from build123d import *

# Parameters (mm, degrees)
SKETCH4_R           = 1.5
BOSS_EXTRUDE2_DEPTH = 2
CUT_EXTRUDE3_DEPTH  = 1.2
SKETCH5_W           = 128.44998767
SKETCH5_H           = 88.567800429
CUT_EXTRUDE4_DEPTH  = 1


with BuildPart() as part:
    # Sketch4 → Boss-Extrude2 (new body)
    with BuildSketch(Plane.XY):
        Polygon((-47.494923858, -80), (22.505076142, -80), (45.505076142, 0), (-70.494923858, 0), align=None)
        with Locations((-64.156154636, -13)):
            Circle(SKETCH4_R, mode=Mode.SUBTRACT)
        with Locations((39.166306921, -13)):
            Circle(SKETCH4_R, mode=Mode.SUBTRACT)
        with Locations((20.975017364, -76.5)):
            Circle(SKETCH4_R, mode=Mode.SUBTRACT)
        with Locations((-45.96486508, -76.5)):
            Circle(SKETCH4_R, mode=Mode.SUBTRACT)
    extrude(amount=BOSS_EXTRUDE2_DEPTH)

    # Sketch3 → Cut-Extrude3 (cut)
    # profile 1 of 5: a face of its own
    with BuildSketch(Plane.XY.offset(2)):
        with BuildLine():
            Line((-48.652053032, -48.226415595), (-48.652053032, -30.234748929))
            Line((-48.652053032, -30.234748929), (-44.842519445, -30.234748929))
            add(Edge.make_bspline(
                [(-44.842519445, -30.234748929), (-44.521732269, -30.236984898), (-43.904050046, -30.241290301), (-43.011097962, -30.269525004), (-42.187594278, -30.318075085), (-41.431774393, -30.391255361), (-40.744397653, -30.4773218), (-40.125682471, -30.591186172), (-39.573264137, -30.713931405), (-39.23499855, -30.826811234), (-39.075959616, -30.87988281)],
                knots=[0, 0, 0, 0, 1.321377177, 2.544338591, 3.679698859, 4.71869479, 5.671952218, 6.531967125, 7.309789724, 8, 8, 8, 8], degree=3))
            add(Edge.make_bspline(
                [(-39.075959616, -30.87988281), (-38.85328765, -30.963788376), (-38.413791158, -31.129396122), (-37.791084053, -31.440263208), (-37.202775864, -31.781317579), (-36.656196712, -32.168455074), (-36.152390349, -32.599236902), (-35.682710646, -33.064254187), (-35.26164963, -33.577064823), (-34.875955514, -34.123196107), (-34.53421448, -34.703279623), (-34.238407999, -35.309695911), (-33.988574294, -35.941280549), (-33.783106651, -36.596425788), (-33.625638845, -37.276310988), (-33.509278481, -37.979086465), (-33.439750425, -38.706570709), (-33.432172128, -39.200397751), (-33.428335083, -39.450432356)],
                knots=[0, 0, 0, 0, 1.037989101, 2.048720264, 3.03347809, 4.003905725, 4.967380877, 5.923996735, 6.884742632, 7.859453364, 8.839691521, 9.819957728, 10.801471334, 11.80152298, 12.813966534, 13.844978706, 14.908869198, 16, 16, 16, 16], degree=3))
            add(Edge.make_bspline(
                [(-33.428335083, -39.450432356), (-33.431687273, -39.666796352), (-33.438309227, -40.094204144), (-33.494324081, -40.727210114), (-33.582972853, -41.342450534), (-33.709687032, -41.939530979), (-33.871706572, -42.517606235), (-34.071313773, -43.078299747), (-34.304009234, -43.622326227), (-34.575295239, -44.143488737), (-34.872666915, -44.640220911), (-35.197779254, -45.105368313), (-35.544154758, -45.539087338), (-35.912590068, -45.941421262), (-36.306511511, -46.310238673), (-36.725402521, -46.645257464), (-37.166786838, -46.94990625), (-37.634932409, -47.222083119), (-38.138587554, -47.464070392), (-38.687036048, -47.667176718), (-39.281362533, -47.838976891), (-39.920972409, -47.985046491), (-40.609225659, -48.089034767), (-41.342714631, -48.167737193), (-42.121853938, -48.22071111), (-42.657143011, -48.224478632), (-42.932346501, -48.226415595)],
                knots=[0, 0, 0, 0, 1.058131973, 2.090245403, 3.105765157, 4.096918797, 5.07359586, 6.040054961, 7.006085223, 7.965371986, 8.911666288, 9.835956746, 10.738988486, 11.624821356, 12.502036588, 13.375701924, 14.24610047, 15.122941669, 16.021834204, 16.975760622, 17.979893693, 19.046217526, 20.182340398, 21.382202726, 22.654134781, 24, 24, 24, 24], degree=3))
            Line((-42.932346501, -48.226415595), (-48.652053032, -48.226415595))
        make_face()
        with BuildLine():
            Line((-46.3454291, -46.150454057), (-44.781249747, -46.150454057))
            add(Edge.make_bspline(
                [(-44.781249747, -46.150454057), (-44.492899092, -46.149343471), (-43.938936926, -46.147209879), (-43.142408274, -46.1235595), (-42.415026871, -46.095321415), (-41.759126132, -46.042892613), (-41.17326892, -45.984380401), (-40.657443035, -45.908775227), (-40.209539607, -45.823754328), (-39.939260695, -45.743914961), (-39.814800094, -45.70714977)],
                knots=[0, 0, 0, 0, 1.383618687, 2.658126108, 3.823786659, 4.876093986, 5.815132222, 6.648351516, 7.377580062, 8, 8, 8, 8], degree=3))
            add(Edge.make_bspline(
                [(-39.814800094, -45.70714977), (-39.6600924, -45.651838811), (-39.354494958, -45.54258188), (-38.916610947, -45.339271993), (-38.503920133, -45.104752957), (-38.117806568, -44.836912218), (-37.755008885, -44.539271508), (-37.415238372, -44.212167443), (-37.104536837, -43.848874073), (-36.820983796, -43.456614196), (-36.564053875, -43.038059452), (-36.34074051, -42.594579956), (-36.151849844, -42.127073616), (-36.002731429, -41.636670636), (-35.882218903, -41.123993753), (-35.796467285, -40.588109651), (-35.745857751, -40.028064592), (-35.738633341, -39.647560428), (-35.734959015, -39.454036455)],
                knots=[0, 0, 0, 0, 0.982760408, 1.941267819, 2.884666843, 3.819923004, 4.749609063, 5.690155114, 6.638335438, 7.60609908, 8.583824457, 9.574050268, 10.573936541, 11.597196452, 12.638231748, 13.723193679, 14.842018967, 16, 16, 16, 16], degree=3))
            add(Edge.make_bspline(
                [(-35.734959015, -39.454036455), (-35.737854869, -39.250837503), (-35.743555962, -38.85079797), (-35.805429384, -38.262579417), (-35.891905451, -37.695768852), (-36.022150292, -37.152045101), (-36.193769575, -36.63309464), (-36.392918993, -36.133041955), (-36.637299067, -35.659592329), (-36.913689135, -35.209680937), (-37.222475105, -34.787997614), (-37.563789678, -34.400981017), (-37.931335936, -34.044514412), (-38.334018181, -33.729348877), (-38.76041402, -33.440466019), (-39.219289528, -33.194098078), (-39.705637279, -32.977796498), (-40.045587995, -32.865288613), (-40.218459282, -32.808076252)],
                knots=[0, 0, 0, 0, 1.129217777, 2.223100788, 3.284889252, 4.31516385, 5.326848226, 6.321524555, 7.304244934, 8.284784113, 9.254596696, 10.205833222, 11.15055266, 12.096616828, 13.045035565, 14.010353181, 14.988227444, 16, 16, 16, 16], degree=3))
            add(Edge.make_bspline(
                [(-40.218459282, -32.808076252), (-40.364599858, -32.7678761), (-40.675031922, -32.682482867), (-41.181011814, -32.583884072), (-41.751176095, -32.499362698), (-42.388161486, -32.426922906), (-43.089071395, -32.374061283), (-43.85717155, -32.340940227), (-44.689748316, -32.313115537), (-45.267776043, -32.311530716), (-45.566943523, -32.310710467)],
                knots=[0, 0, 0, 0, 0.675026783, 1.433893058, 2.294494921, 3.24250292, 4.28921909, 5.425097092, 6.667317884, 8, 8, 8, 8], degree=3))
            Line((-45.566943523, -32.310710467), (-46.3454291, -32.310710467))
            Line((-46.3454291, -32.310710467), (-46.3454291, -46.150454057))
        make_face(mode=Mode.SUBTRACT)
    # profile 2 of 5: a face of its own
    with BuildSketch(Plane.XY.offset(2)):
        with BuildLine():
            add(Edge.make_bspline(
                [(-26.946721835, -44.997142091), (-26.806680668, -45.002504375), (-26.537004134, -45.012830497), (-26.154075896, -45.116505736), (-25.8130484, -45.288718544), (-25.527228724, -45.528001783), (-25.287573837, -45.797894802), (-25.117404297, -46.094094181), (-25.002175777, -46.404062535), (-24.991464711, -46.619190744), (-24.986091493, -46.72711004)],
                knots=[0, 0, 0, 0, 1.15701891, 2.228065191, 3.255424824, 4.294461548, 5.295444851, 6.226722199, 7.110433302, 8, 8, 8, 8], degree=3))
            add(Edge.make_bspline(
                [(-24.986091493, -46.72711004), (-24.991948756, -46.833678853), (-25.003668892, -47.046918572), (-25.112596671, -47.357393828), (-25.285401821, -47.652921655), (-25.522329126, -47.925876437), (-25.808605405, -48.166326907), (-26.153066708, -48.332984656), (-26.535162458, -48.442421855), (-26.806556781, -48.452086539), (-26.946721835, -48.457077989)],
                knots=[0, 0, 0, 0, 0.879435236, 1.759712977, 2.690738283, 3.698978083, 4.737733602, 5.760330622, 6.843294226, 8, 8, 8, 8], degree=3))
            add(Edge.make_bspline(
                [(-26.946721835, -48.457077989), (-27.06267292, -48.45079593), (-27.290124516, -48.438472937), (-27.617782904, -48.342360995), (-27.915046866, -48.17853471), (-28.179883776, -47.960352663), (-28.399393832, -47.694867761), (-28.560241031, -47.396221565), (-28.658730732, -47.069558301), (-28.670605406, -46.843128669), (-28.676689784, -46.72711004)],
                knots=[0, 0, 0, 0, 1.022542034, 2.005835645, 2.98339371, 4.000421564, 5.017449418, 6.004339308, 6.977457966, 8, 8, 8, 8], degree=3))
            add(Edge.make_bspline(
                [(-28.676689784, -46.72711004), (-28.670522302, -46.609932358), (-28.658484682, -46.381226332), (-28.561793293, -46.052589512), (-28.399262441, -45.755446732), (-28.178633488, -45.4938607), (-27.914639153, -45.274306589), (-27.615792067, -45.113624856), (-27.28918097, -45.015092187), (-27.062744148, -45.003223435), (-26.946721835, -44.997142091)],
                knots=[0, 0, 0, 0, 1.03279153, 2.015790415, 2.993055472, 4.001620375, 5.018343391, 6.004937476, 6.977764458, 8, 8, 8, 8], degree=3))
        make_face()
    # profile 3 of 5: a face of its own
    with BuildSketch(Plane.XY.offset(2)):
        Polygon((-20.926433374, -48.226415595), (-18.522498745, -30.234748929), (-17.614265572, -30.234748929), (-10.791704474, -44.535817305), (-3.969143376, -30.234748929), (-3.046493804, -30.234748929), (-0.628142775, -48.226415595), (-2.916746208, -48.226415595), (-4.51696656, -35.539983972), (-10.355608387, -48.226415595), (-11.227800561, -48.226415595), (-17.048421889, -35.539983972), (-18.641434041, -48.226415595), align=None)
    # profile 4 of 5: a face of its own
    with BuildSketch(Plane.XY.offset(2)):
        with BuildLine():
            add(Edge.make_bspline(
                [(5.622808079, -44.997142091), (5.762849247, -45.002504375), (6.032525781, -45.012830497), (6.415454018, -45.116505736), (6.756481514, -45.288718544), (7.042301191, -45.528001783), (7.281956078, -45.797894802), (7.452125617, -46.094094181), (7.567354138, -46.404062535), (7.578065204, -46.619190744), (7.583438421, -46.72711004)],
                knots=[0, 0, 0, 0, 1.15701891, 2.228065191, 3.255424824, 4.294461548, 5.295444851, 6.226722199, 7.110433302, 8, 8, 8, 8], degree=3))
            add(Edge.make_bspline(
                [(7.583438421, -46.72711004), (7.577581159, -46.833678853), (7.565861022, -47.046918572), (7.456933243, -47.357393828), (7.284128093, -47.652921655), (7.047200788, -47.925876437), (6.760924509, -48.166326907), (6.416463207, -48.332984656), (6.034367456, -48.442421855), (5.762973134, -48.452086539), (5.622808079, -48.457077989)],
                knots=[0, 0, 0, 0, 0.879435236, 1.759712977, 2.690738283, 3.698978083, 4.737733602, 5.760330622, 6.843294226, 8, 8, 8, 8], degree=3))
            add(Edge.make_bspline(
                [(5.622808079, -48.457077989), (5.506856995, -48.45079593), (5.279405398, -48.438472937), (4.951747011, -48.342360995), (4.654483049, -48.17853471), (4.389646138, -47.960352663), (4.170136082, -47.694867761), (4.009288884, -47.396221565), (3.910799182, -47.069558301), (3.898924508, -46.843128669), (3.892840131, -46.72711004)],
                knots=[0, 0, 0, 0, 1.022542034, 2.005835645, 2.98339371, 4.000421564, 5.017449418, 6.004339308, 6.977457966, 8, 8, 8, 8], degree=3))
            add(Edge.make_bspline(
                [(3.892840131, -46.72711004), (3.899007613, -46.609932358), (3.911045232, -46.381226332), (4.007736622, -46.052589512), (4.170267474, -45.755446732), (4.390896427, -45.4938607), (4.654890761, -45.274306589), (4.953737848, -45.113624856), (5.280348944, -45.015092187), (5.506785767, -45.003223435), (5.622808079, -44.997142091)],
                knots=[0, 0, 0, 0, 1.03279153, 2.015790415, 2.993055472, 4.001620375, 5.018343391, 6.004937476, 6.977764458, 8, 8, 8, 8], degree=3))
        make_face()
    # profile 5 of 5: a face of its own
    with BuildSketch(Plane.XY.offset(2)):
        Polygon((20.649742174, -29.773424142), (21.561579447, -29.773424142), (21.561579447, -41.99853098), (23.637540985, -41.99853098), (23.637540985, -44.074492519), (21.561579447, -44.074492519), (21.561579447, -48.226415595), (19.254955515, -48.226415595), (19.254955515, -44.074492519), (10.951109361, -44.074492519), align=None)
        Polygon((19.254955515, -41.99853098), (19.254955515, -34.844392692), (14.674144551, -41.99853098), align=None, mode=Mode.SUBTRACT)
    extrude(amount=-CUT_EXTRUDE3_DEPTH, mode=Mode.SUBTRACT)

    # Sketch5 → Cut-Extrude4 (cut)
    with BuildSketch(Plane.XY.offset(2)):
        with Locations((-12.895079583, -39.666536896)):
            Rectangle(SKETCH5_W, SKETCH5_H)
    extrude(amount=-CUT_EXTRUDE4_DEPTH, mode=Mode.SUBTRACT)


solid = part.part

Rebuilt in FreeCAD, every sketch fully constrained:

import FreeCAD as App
import Part
import Sketcher

doc = App.newDocument("Part")
body = doc.addObject("PartDesign::Body", "Body")

sketch1 = doc.addObject("Sketcher::SketchObject", "Sketch")
body.addObject(sketch1)
sketch1.AttachmentSupport = (doc.XY_Plane, [""])
sketch1.MapMode = "FlatFace"
sketch1.addGeometry(Part.LineSegment(App.Vector(-47.5, -80, 0), App.Vector(22.5, -80, 0)), False)
sketch1.addGeometry(Part.LineSegment(App.Vector(22.5, -80, 0), App.Vector(45.5, 0, 0)), False)
sketch1.addGeometry(Part.LineSegment(App.Vector(45.5, 0, 0), App.Vector(-70.5, 0, 0)), False)
sketch1.addGeometry(Part.LineSegment(App.Vector(-70.5, 0, 0), App.Vector(-47.5, -80, 0)), False)
sketch1.addGeometry(Part.Circle(App.Vector(-46, -76.5, 0), App.Vector(0, 0, 1), 1.5), False)
sketch1.addGeometry(Part.Circle(App.Vector(21, -76.5, 0), App.Vector(0, 0, 1), 1.5), False)
sketch1.addGeometry(Part.Circle(App.Vector(-64.2, -13, 0), App.Vector(0, 0, 1), 1.5), False)
sketch1.addGeometry(Part.Circle(App.Vector(39.2, -13, 0), App.Vector(0, 0, 1), 1.5), False)
sketch1.addConstraint(Sketcher.Constraint("Coincident", 0, 2, 1, 1))
sketch1.addConstraint(Sketcher.Constraint("Coincident", 1, 2, 2, 1))
sketch1.addConstraint(Sketcher.Constraint("Coincident", 2, 2, 3, 1))
sketch1.addConstraint(Sketcher.Constraint("Coincident", 3, 2, 0, 1))
sketch1.addConstraint(Sketcher.Constraint("Horizontal", 0))
sketch1.addConstraint(Sketcher.Constraint("Horizontal", 2))
sketch1.addConstraint(Sketcher.Constraint("Equal", 4, 5))
sketch1.addConstraint(Sketcher.Constraint("Equal", 5, 6))
sketch1.addConstraint(Sketcher.Constraint("Equal", 6, 7))
sketch1.addConstraint(Sketcher.Constraint("PointOnObject", 1, 2, -1))
sketch1.addConstraint(Sketcher.Constraint("Horizontal", 4, 3, 5, 3))
sketch1.addConstraint(Sketcher.Constraint("Horizontal", 6, 3, 7, 3))
sketch1.addConstraint(Sketcher.Constraint("Equal", 1, 3))
sketch1.addConstraint(Sketcher.Constraint("Diameter", 4, 3.0))
sketch1.addConstraint(Sketcher.Constraint("DistanceX", 0, 1, 0, 2, 70.0))
sketch1.addConstraint(Sketcher.Constraint("DistanceX", 2, 2, 2, 1, 116.0))
sketch1.addConstraint(Sketcher.Constraint("DistanceY", 6, 3, -1, 1, 13.0))
sketch1.addConstraint(Sketcher.Constraint("DistanceY", 0, 2, -1, 1, 80.0))
sketch1.addConstraint(Sketcher.Constraint("DistanceY", 4, 3, -1, 1, 76.5))
sketch1.addConstraint(Sketcher.Constraint("DistanceX", 6, 3, 4, 3, 18.19129))
sketch1.addConstraint(Sketcher.Constraint("DistanceX", 6, 3, 5, 3, 85.131172))
sketch1.addConstraint(Sketcher.Constraint("DistanceX", 5, 3, 7, 3, 18.19129))
sketch1.addConstraint(Sketcher.Constraint("DistanceX", 5, 3, 0, 2, 1.530059))
sketch1.addConstraint(Sketcher.Constraint("DistanceX", 4, 3, -1, 1, 45.964865))
pad1 = doc.addObject("PartDesign::Pad", "Pad")
body.addObject(pad1)
pad1.Profile = sketch1
pad1.Length = 2

sketch2 = doc.addObject("Sketcher::SketchObject", "Sketch001")
body.addObject(sketch2)
sketch2.AttachmentSupport = (doc.XY_Plane, [""])
sketch2.MapMode = "FlatFace"
sketch2.AttachmentOffset = App.Placement(App.Vector(0, 0, 2), App.Rotation())
sketch2.addGeometry(Part.LineSegment(App.Vector(-48.652053, -30.234749, 0), App.Vector(-48.652053, -48.226416, 0)), False)
sketch2.addGeometry(Part.LineSegment(App.Vector(-48.652053, -48.226416, 0), App.Vector(-42.932347, -48.226416, 0)), False)
sketch2.addGeometry(Part.BSplineCurve([App.Vector(-33.428335, -39.450432, 0), App.Vector(-33.431687, -39.666796, 0), App.Vector(-33.438309, -40.094204, 0), App.Vector(-33.494324, -40.72721, 0), App.Vector(-33.582973, -41.342451, 0), App.Vector(-33.709687, -41.939531, 0), App.Vector(-33.871707, -42.517606, 0), App.Vector(-34.071314, -43.0783, 0), App.Vector(-34.304009, -43.622326, 0), App.Vector(-34.575295, -44.143489, 0), App.Vector(-34.872667, -44.640221, 0), App.Vector(-35.197779, -45.105368, 0), App.Vector(-35.544155, -45.539087, 0), App.Vector(-35.91259, -45.941421, 0), App.Vector(-36.306512, -46.310239, 0), App.Vector(-36.725403, -46.645257, 0), App.Vector(-37.166787, -46.949906, 0), App.Vector(-37.634932, -47.222083, 0), App.Vector(-38.138588, -47.46407, 0), App.Vector(-38.687036, -47.667177, 0), App.Vector(-39.281363, -47.838977, 0), App.Vector(-39.920972, -47.985046, 0), App.Vector(-40.609226, -48.089035, 0), App.Vector(-41.342715, -48.167737, 0), App.Vector(-42.121854, -48.220711, 0), App.Vector(-42.657143, -48.224479, 0), App.Vector(-42.932347, -48.226416, 0)], [4, 1, 1, 1, 1, 1, 1, 1, 1, 1, 1, 1, 1, 1, 1, 1, 1, 1, 1, 1, 1, 1, 1, 1, 4], [0, 1.058131973, 2.090245403, 3.105765157, 4.096918797, 5.07359586, 6.040054961, 7.006085223, 7.965371986, 8.911666288, 9.835956746, 10.738988486, 11.624821356, 12.502036588, 13.375701924, 14.24610047, 15.122941669, 16.021834204, 16.975760622, 17.979893693, 19.046217526, 20.182340398, 21.382202726, 22.654134781, 24], False, 3, [1, 1, 1, 1, 1, 1, 1, 1, 1, 1, 1, 1, 1, 1, 1, 1, 1, 1, 1, 1, 1, 1, 1, 1, 1, 1, 1], False), False)
sketch2.addGeometry(Part.BSplineCurve([App.Vector(-39.07596, -30.879883, 0), App.Vector(-38.853288, -30.963788, 0), App.Vector(-38.413791, -31.129396, 0), App.Vector(-37.791084, -31.440263, 0), App.Vector(-37.202776, -31.781318, 0), App.Vector(-36.656197, -32.168455, 0), App.Vector(-36.15239, -32.599237, 0), App.Vector(-35.682711, -33.064254, 0), App.Vector(-35.26165, -33.577065, 0), App.Vector(-34.875956, -34.123196, 0), App.Vector(-34.534214, -34.70328, 0), App.Vector(-34.238408, -35.309696, 0), App.Vector(-33.988574, -35.941281, 0), App.Vector(-33.783107, -36.596426, 0), App.Vector(-33.625639, -37.276311, 0), App.Vector(-33.509278, -37.979086, 0), App.Vector(-33.43975, -38.706571, 0), App.Vector(-33.432172, -39.200398, 0), App.Vector(-33.428335, -39.450432, 0)], [4, 1, 1, 1, 1, 1, 1, 1, 1, 1, 1, 1, 1, 1, 1, 1, 4], [0, 1.037989101, 2.048720264, 3.03347809, 4.003905725, 4.967380877, 5.923996735, 6.884742632, 7.859453364, 8.839691521, 9.819957728, 10.801471334, 11.80152298, 12.813966534, 13.844978706, 14.908869198, 16], False, 3, [1, 1, 1, 1, 1, 1, 1, 1, 1, 1, 1, 1, 1, 1, 1, 1, 1, 1, 1], False), False)
sketch2.addGeometry(Part.BSplineCurve([App.Vector(-44.842519, -30.234749, 0), App.Vector(-44.521732, -30.236985, 0), App.Vector(-43.90405, -30.24129, 0), App.Vector(-43.011098, -30.269525, 0), App.Vector(-42.187594, -30.318075, 0), App.Vector(-41.431774, -30.391255, 0), App.Vector(-40.744398, -30.477322, 0), App.Vector(-40.125682, -30.591186, 0), App.Vector(-39.573264, -30.713931, 0), App.Vector(-39.234999, -30.826811, 0), App.Vector(-39.07596, -30.879883, 0)], [4, 1, 1, 1, 1, 1, 1, 1, 4], [0, 1.321377177, 2.544338591, 3.679698859, 4.71869479, 5.671952218, 6.531967125, 7.309789724, 8], False, 3, [1, 1, 1, 1, 1, 1, 1, 1, 1, 1, 1], False), False)
sketch2.addGeometry(Part.LineSegment(App.Vector(-44.842519, -30.234749, 0), App.Vector(-48.652053, -30.234749, 0)), False)
sketch2.addGeometry(Part.LineSegment(App.Vector(-46.345429, -46.150454, 0), App.Vector(-46.345429, -32.31071, 0)), False)
sketch2.addGeometry(Part.LineSegment(App.Vector(-46.345429, -32.31071, 0), App.Vector(-45.566944, -32.31071, 0)), False)
sketch2.addGeometry(Part.BSplineCurve([App.Vector(-40.218459, -32.808076, 0), App.Vector(-40.3646, -32.767876, 0), App.Vector(-40.675032, -32.682483, 0), App.Vector(-41.181012, -32.583884, 0), App.Vector(-41.751176, -32.499363, 0), App.Vector(-42.388161, -32.426923, 0), App.Vector(-43.089071, -32.374061, 0), App.Vector(-43.857172, -32.34094, 0), App.Vector(-44.689748, -32.313116, 0), App.Vector(-45.267776, -32.311531, 0), App.Vector(-45.566944, -32.31071, 0)], [4, 1, 1, 1, 1, 1, 1, 1, 4], [0, 0.675026783, 1.433893058, 2.294494921, 3.24250292, 4.28921909, 5.425097092, 6.667317884, 8], False, 3, [1, 1, 1, 1, 1, 1, 1, 1, 1, 1, 1], False), False)
sketch2.addGeometry(Part.BSplineCurve([App.Vector(-35.734959, -39.454036, 0), App.Vector(-35.737855, -39.250838, 0), App.Vector(-35.743556, -38.850798, 0), App.Vector(-35.805429, -38.262579, 0), App.Vector(-35.891905, -37.695769, 0), App.Vector(-36.02215, -37.152045, 0), App.Vector(-36.19377, -36.633095, 0), App.Vector(-36.392919, -36.133042, 0), App.Vector(-36.637299, -35.659592, 0), App.Vector(-36.913689, -35.209681, 0), App.Vector(-37.222475, -34.787998, 0), App.Vector(-37.56379, -34.400981, 0), App.Vector(-37.931336, -34.044514, 0), App.Vector(-38.334018, -33.729349, 0), App.Vector(-38.760414, -33.440466, 0), App.Vector(-39.21929, -33.194098, 0), App.Vector(-39.705637, -32.977796, 0), App.Vector(-40.045588, -32.865289, 0), App.Vector(-40.218459, -32.808076, 0)], [4, 1, 1, 1, 1, 1, 1, 1, 1, 1, 1, 1, 1, 1, 1, 1, 4], [0, 1.129217777, 2.223100788, 3.284889252, 4.31516385, 5.326848226, 6.321524555, 7.304244934, 8.284784113, 9.254596696, 10.205833222, 11.15055266, 12.096616828, 13.045035565, 14.010353181, 14.988227444, 16], False, 3, [1, 1, 1, 1, 1, 1, 1, 1, 1, 1, 1, 1, 1, 1, 1, 1, 1, 1, 1], False), False)
sketch2.addGeometry(Part.BSplineCurve([App.Vector(-39.8148, -45.70715, 0), App.Vector(-39.660092, -45.651839, 0), App.Vector(-39.354495, -45.542582, 0), App.Vector(-38.916611, -45.339272, 0), App.Vector(-38.50392, -45.104753, 0), App.Vector(-38.117807, -44.836912, 0), App.Vector(-37.755009, -44.539272, 0), App.Vector(-37.415238, -44.212167, 0), App.Vector(-37.104537, -43.848874, 0), App.Vector(-36.820984, -43.456614, 0), App.Vector(-36.564054, -43.038059, 0), App.Vector(-36.340741, -42.59458, 0), App.Vector(-36.15185, -42.127074, 0), App.Vector(-36.002731, -41.636671, 0), App.Vector(-35.882219, -41.123994, 0), App.Vector(-35.796467, -40.58811, 0), App.Vector(-35.745858, -40.028065, 0), App.Vector(-35.738633, -39.64756, 0), App.Vector(-35.734959, -39.454036, 0)], [4, 1, 1, 1, 1, 1, 1, 1, 1, 1, 1, 1, 1, 1, 1, 1, 4], [0, 0.982760408, 1.941267819, 2.884666843, 3.819923004, 4.749609063, 5.690155114, 6.638335438, 7.60609908, 8.583824457, 9.574050268, 10.573936541, 11.597196452, 12.638231748, 13.723193679, 14.842018967, 16], False, 3, [1, 1, 1, 1, 1, 1, 1, 1, 1, 1, 1, 1, 1, 1, 1, 1, 1, 1, 1], False), False)
sketch2.addGeometry(Part.BSplineCurve([App.Vector(-44.78125, -46.150454, 0), App.Vector(-44.492899, -46.149343, 0), App.Vector(-43.938937, -46.14721, 0), App.Vector(-43.142408, -46.123559, 0), App.Vector(-42.415027, -46.095321, 0), App.Vector(-41.759126, -46.042893, 0), App.Vector(-41.173269, -45.98438, 0), App.Vector(-40.657443, -45.908775, 0), App.Vector(-40.20954, -45.823754, 0), App.Vector(-39.939261, -45.743915, 0), App.Vector(-39.8148, -45.70715, 0)], [4, 1, 1, 1, 1, 1, 1, 1, 4], [0, 1.383618687, 2.658126108, 3.823786659, 4.876093986, 5.815132222, 6.648351516, 7.377580062, 8], False, 3, [1, 1, 1, 1, 1, 1, 1, 1, 1, 1, 1], False), False)
sketch2.addGeometry(Part.LineSegment(App.Vector(-44.78125, -46.150454, 0), App.Vector(-46.345429, -46.150454, 0)), False)
sketch2.addGeometry(Part.BSplineCurve([App.Vector(-26.946722, -44.997142, 0), App.Vector(-26.806681, -45.002504, 0), App.Vector(-26.537004, -45.01283, 0), App.Vector(-26.154076, -45.116506, 0), App.Vector(-25.813048, -45.288719, 0), App.Vector(-25.527229, -45.528002, 0), App.Vector(-25.287574, -45.797895, 0), App.Vector(-25.117404, -46.094094, 0), App.Vector(-25.002176, -46.404063, 0), App.Vector(-24.991465, -46.619191, 0), App.Vector(-24.986091, -46.72711, 0)], [4, 1, 1, 1, 1, 1, 1, 1, 4], [0, 1.15701891, 2.228065191, 3.255424824, 4.294461548, 5.295444851, 6.226722199, 7.110433302, 8], False, 3, [1, 1, 1, 1, 1, 1, 1, 1, 1, 1, 1], False), False)
sketch2.addGeometry(Part.BSplineCurve([App.Vector(-28.67669, -46.72711, 0), App.Vector(-28.670522, -46.609932, 0), App.Vector(-28.658485, -46.381226, 0), App.Vector(-28.561793, -46.05259, 0), App.Vector(-28.399262, -45.755447, 0), App.Vector(-28.178633, -45.493861, 0), App.Vector(-27.914639, -45.274307, 0), App.Vector(-27.615792, -45.113625, 0), App.Vector(-27.289181, -45.015092, 0), App.Vector(-27.062744, -45.003223, 0), App.Vector(-26.946722, -44.997142, 0)], [4, 1, 1, 1, 1, 1, 1, 1, 4], [0, 1.03279153, 2.015790415, 2.993055472, 4.001620375, 5.018343391, 6.004937476, 6.977764458, 8], False, 3, [1, 1, 1, 1, 1, 1, 1, 1, 1, 1, 1], False), False)
sketch2.addGeometry(Part.BSplineCurve([App.Vector(-26.946722, -48.457078, 0), App.Vector(-27.062673, -48.450796, 0), App.Vector(-27.290125, -48.438473, 0), App.Vector(-27.617783, -48.342361, 0), App.Vector(-27.915047, -48.178535, 0), App.Vector(-28.179884, -47.960353, 0), App.Vector(-28.399394, -47.694868, 0), App.Vector(-28.560241, -47.396222, 0), App.Vector(-28.658731, -47.069558, 0), App.Vector(-28.670605, -46.843129, 0), App.Vector(-28.67669, -46.72711, 0)], [4, 1, 1, 1, 1, 1, 1, 1, 4], [0, 1.022542034, 2.005835645, 2.98339371, 4.000421564, 5.017449418, 6.004339308, 6.977457966, 8], False, 3, [1, 1, 1, 1, 1, 1, 1, 1, 1, 1, 1], False), False)
sketch2.addGeometry(Part.BSplineCurve([App.Vector(-24.986091, -46.72711, 0), App.Vector(-24.991949, -46.833679, 0), App.Vector(-25.003669, -47.046919, 0), App.Vector(-25.112597, -47.357394, 0), App.Vector(-25.285402, -47.652922, 0), App.Vector(-25.522329, -47.925876, 0), App.Vector(-25.808605, -48.166327, 0), App.Vector(-26.153067, -48.332985, 0), App.Vector(-26.535162, -48.442422, 0), App.Vector(-26.806557, -48.452087, 0), App.Vector(-26.946722, -48.457078, 0)], [4, 1, 1, 1, 1, 1, 1, 1, 4], [0, 0.879435236, 1.759712977, 2.690738283, 3.698978083, 4.737733602, 5.760330622, 6.843294226, 8], False, 3, [1, 1, 1, 1, 1, 1, 1, 1, 1, 1, 1], False), False)
sketch2.addGeometry(Part.LineSegment(App.Vector(-18.522499, -30.234749, 0), App.Vector(-20.926433, -48.226416, 0)), False)
sketch2.addGeometry(Part.LineSegment(App.Vector(-20.926433, -48.226416, 0), App.Vector(-18.641434, -48.226416, 0)), False)
sketch2.addGeometry(Part.LineSegment(App.Vector(-18.641434, -48.226416, 0), App.Vector(-17.048422, -35.539984, 0)), False)
sketch2.addGeometry(Part.LineSegment(App.Vector(-17.048422, -35.539984, 0), App.Vector(-11.227801, -48.226416, 0)), False)
sketch2.addGeometry(Part.LineSegment(App.Vector(-11.227801, -48.226416, 0), App.Vector(-10.355608, -48.226416, 0)), False)
sketch2.addGeometry(Part.LineSegment(App.Vector(-10.355608, -48.226416, 0), App.Vector(-4.516967, -35.539984, 0)), False)
sketch2.addGeometry(Part.LineSegment(App.Vector(-4.516967, -35.539984, 0), App.Vector(-2.916746, -48.226416, 0)), False)
sketch2.addGeometry(Part.LineSegment(App.Vector(-2.916746, -48.226416, 0), App.Vector(-0.628143, -48.226416, 0)), False)
sketch2.addGeometry(Part.LineSegment(App.Vector(-0.628143, -48.226416, 0), App.Vector(-3.046494, -30.234749, 0)), False)
sketch2.addGeometry(Part.LineSegment(App.Vector(-3.046494, -30.234749, 0), App.Vector(-3.969143, -30.234749, 0)), False)
sketch2.addGeometry(Part.LineSegment(App.Vector(-3.969143, -30.234749, 0), App.Vector(-10.791704, -44.535817, 0)), False)
sketch2.addGeometry(Part.LineSegment(App.Vector(-10.791704, -44.535817, 0), App.Vector(-17.614266, -30.234749, 0)), False)
sketch2.addGeometry(Part.LineSegment(App.Vector(-17.614266, -30.234749, 0), App.Vector(-18.522499, -30.234749, 0)), False)
sketch2.addGeometry(Part.BSplineCurve([App.Vector(5.622808, -44.997142, 0), App.Vector(5.762849, -45.002504, 0), App.Vector(6.032526, -45.01283, 0), App.Vector(6.415454, -45.116506, 0), App.Vector(6.756482, -45.288719, 0), App.Vector(7.042301, -45.528002, 0), App.Vector(7.281956, -45.797895, 0), App.Vector(7.452126, -46.094094, 0), App.Vector(7.567354, -46.404063, 0), App.Vector(7.578065, -46.619191, 0), App.Vector(7.583438, -46.72711, 0)], [4, 1, 1, 1, 1, 1, 1, 1, 4], [0, 1.15701891, 2.228065191, 3.255424824, 4.294461548, 5.295444851, 6.226722199, 7.110433302, 8], False, 3, [1, 1, 1, 1, 1, 1, 1, 1, 1, 1, 1], False), False)
sketch2.addGeometry(Part.BSplineCurve([App.Vector(3.89284, -46.72711, 0), App.Vector(3.899008, -46.609932, 0), App.Vector(3.911045, -46.381226, 0), App.Vector(4.007737, -46.05259, 0), App.Vector(4.170267, -45.755447, 0), App.Vector(4.390896, -45.493861, 0), App.Vector(4.654891, -45.274307, 0), App.Vector(4.953738, -45.113625, 0), App.Vector(5.280349, -45.015092, 0), App.Vector(5.506786, -45.003223, 0), App.Vector(5.622808, -44.997142, 0)], [4, 1, 1, 1, 1, 1, 1, 1, 4], [0, 1.03279153, 2.015790415, 2.993055472, 4.001620375, 5.018343391, 6.004937476, 6.977764458, 8], False, 3, [1, 1, 1, 1, 1, 1, 1, 1, 1, 1, 1], False), False)
sketch2.addGeometry(Part.BSplineCurve([App.Vector(5.622808, -48.457078, 0), App.Vector(5.506857, -48.450796, 0), App.Vector(5.279405, -48.438473, 0), App.Vector(4.951747, -48.342361, 0), App.Vector(4.654483, -48.178535, 0), App.Vector(4.389646, -47.960353, 0), App.Vector(4.170136, -47.694868, 0), App.Vector(4.009289, -47.396222, 0), App.Vector(3.910799, -47.069558, 0), App.Vector(3.898925, -46.843129, 0), App.Vector(3.89284, -46.72711, 0)], [4, 1, 1, 1, 1, 1, 1, 1, 4], [0, 1.022542034, 2.005835645, 2.98339371, 4.000421564, 5.017449418, 6.004339308, 6.977457966, 8], False, 3, [1, 1, 1, 1, 1, 1, 1, 1, 1, 1, 1], False), False)
sketch2.addGeometry(Part.BSplineCurve([App.Vector(7.583438, -46.72711, 0), App.Vector(7.577581, -46.833679, 0), App.Vector(7.565861, -47.046919, 0), App.Vector(7.456933, -47.357394, 0), App.Vector(7.284128, -47.652922, 0), App.Vector(7.047201, -47.925876, 0), App.Vector(6.760925, -48.166327, 0), App.Vector(6.416463, -48.332985, 0), App.Vector(6.034367, -48.442422, 0), App.Vector(5.762973, -48.452087, 0), App.Vector(5.622808, -48.457078, 0)], [4, 1, 1, 1, 1, 1, 1, 1, 4], [0, 0.879435236, 1.759712977, 2.690738283, 3.698978083, 4.737733602, 5.760330622, 6.843294226, 8], False, 3, [1, 1, 1, 1, 1, 1, 1, 1, 1, 1, 1], False), False)
sketch2.addGeometry(Part.LineSegment(App.Vector(21.561579, -29.773424, 0), App.Vector(20.649742, -29.773424, 0)), False)
sketch2.addGeometry(Part.LineSegment(App.Vector(20.649742, -29.773424, 0), App.Vector(10.951109, -44.074493, 0)), False)
sketch2.addGeometry(Part.LineSegment(App.Vector(10.951109, -44.074493, 0), App.Vector(19.254956, -44.074493, 0)), False)
sketch2.addGeometry(Part.LineSegment(App.Vector(19.254956, -44.074493, 0), App.Vector(19.254956, -48.226416, 0)), False)
sketch2.addGeometry(Part.LineSegment(App.Vector(19.254956, -48.226416, 0), App.Vector(21.561579, -48.226416, 0)), False)
sketch2.addGeometry(Part.LineSegment(App.Vector(21.561579, -48.226416, 0), App.Vector(21.561579, -44.074493, 0)), False)
sketch2.addGeometry(Part.LineSegment(App.Vector(21.561579, -44.074493, 0), App.Vector(23.637541, -44.074493, 0)), False)
sketch2.addGeometry(Part.LineSegment(App.Vector(23.637541, -44.074493, 0), App.Vector(23.637541, -41.998531, 0)), False)
sketch2.addGeometry(Part.LineSegment(App.Vector(23.637541, -41.998531, 0), App.Vector(21.561579, -41.998531, 0)), False)
sketch2.addGeometry(Part.LineSegment(App.Vector(21.561579, -41.998531, 0), App.Vector(21.561579, -29.773424, 0)), False)
sketch2.addGeometry(Part.LineSegment(App.Vector(19.254956, -41.998531, 0), App.Vector(14.674145, -41.998531, 0)), False)
sketch2.addGeometry(Part.LineSegment(App.Vector(14.674145, -41.998531, 0), App.Vector(19.254956, -34.844393, 0)), False)
sketch2.addGeometry(Part.LineSegment(App.Vector(19.254956, -34.844393, 0), App.Vector(19.254956, -41.998531, 0)), False)
sketch2.addConstraint(Sketcher.Constraint("Block", 2))
sketch2.addConstraint(Sketcher.Constraint("Block", 3))
sketch2.addConstraint(Sketcher.Constraint("Block", 4))
sketch2.addConstraint(Sketcher.Constraint("Block", 8))
sketch2.addConstraint(Sketcher.Constraint("Block", 9))
sketch2.addConstraint(Sketcher.Constraint("Block", 10))
sketch2.addConstraint(Sketcher.Constraint("Block", 11))
sketch2.addConstraint(Sketcher.Constraint("Block", 13))
sketch2.addConstraint(Sketcher.Constraint("Block", 14))
sketch2.addConstraint(Sketcher.Constraint("Block", 15))
sketch2.addConstraint(Sketcher.Constraint("Block", 16))
sketch2.addConstraint(Sketcher.Constraint("Block", 30))
sketch2.addConstraint(Sketcher.Constraint("Block", 31))
sketch2.addConstraint(Sketcher.Constraint("Block", 32))
sketch2.addConstraint(Sketcher.Constraint("Block", 33))
sketch2.addConstraint(Sketcher.Constraint("Coincident", 0, 2, 1, 1))
sketch2.addConstraint(Sketcher.Constraint("Coincident", 1, 2, 2, 2))
sketch2.addConstraint(Sketcher.Constraint("Coincident", 4, 1, 5, 1))
sketch2.addConstraint(Sketcher.Constraint("Coincident", 5, 2, 0, 1))
sketch2.addConstraint(Sketcher.Constraint("Coincident", 6, 2, 7, 1))
sketch2.addConstraint(Sketcher.Constraint("Coincident", 7, 2, 8, 2))
sketch2.addConstraint(Sketcher.Constraint("Coincident", 11, 1, 12, 1))
sketch2.addConstraint(Sketcher.Constraint("Coincident", 12, 2, 6, 1))
sketch2.addConstraint(Sketcher.Constraint("Coincident", 17, 2, 18, 1))
sketch2.addConstraint(Sketcher.Constraint("Coincident", 18, 2, 19, 1))
sketch2.addConstraint(Sketcher.Constraint("Coincident", 19, 2, 20, 1))
sketch2.addConstraint(Sketcher.Constraint("Coincident", 20, 2, 21, 1))
sketch2.addConstraint(Sketcher.Constraint("Coincident", 21, 2, 22, 1))
sketch2.addConstraint(Sketcher.Constraint("Coincident", 22, 2, 23, 1))
sketch2.addConstraint(Sketcher.Constraint("Coincident", 23, 2, 24, 1))
sketch2.addConstraint(Sketcher.Constraint("Coincident", 24, 2, 25, 1))
sketch2.addConstraint(Sketcher.Constraint("Coincident", 25, 2, 26, 1))
sketch2.addConstraint(Sketcher.Constraint("Coincident", 26, 2, 27, 1))
sketch2.addConstraint(Sketcher.Constraint("Coincident", 27, 2, 28, 1))
sketch2.addConstraint(Sketcher.Constraint("Coincident", 28, 2, 29, 1))
sketch2.addConstraint(Sketcher.Constraint("Coincident", 29, 2, 17, 1))
sketch2.addConstraint(Sketcher.Constraint("Coincident", 34, 2, 35, 1))
sketch2.addConstraint(Sketcher.Constraint("Coincident", 35, 2, 36, 1))
sketch2.addConstraint(Sketcher.Constraint("Coincident", 36, 2, 37, 1))
sketch2.addConstraint(Sketcher.Constraint("Coincident", 37, 2, 38, 1))
sketch2.addConstraint(Sketcher.Constraint("Coincident", 38, 2, 39, 1))
sketch2.addConstraint(Sketcher.Constraint("Coincident", 39, 2, 40, 1))
sketch2.addConstraint(Sketcher.Constraint("Coincident", 40, 2, 41, 1))
sketch2.addConstraint(Sketcher.Constraint("Coincident", 41, 2, 42, 1))
sketch2.addConstraint(Sketcher.Constraint("Coincident", 42, 2, 43, 1))
sketch2.addConstraint(Sketcher.Constraint("Coincident", 43, 2, 34, 1))
sketch2.addConstraint(Sketcher.Constraint("Coincident", 44, 2, 45, 1))
sketch2.addConstraint(Sketcher.Constraint("Coincident", 45, 2, 46, 1))
sketch2.addConstraint(Sketcher.Constraint("Coincident", 46, 2, 44, 1))
sketch2.addConstraint(Sketcher.Constraint("Vertical", 0))
sketch2.addConstraint(Sketcher.Constraint("Horizontal", 1))
sketch2.addConstraint(Sketcher.Constraint("Horizontal", 5))
sketch2.addConstraint(Sketcher.Constraint("Vertical", 6))
sketch2.addConstraint(Sketcher.Constraint("Horizontal", 7))
sketch2.addConstraint(Sketcher.Constraint("Horizontal", 12))
sketch2.addConstraint(Sketcher.Constraint("Horizontal", 18))
sketch2.addConstraint(Sketcher.Constraint("Horizontal", 21))
sketch2.addConstraint(Sketcher.Constraint("Horizontal", 24))
sketch2.addConstraint(Sketcher.Constraint("Horizontal", 26))
sketch2.addConstraint(Sketcher.Constraint("Horizontal", 29))
sketch2.addConstraint(Sketcher.Constraint("Horizontal", 34))
sketch2.addConstraint(Sketcher.Constraint("Horizontal", 36))
sketch2.addConstraint(Sketcher.Constraint("Vertical", 37))
sketch2.addConstraint(Sketcher.Constraint("Horizontal", 38))
sketch2.addConstraint(Sketcher.Constraint("Vertical", 39))
sketch2.addConstraint(Sketcher.Constraint("Horizontal", 40))
sketch2.addConstraint(Sketcher.Constraint("Vertical", 41))
sketch2.addConstraint(Sketcher.Constraint("Horizontal", 42))
sketch2.addConstraint(Sketcher.Constraint("Vertical", 43))
sketch2.addConstraint(Sketcher.Constraint("Horizontal", 44))
sketch2.addConstraint(Sketcher.Constraint("Vertical", 46))
sketch2.addConstraint(Sketcher.Constraint("Horizontal", 1, 2, 17, 2))
sketch2.addConstraint(Sketcher.Constraint("Horizontal", 18, 2, 20, 2))
sketch2.addConstraint(Sketcher.Constraint("Horizontal", 19, 2, 22, 2))
sketch2.addConstraint(Sketcher.Constraint("Horizontal", 21, 2, 23, 2))
sketch2.addConstraint(Sketcher.Constraint("Horizontal", 5, 2, 25, 2))
sketch2.addConstraint(Sketcher.Constraint("Horizontal", 26, 2, 28, 2))
sketch2.addConstraint(Sketcher.Constraint("Horizontal", 24, 2, 37, 2))
sketch2.addConstraint(Sketcher.Constraint("Horizontal", 36, 2, 39, 2))
sketch2.addConstraint(Sketcher.Constraint("Horizontal", 42, 2, 44, 2))
sketch2.addConstraint(Sketcher.Constraint("Vertical", 39, 2, 42, 2))
sketch2.addConstraint(Sketcher.Constraint("Vertical", 37, 2, 45, 2))
sketch2.addConstraint(Sketcher.Constraint("Equal", 42, 41))
sketch2.addConstraint(Sketcher.Constraint("Equal", 27, 28))
sketch2.addConstraint(Sketcher.Constraint("DistanceX", 18, 1, 18, 2, 2.284999))
sketch2.addConstraint(Sketcher.Constraint("DistanceX", 26, 2, 24, 2, 3.341001))
sketch2.addConstraint(Sketcher.Constraint("DistanceX", 12, 2, 12, 1, 1.564179))
sketch2.addConstraint(Sketcher.Constraint("DistanceX", 26, 2, 26, 1, 0.92265))
sketch2.addConstraint(Sketcher.Constraint("DistanceX", 40, 1, 40, 2, 2.075962))
sketch2.addConstraint(Sketcher.Constraint("DistanceX", 44, 2, 44, 1, 4.580811))
sketch2.addConstraint(Sketcher.Constraint("DistanceY", 46, 2, 46, 1, 7.154138))
sketch2.addConstraint(Sketcher.Constraint("DistanceX", 20, 2, -1, 1, 11.227801))
sketch2.addConstraint(Sketcher.Constraint("DistanceX", 29, 2, -1, 1, 18.522499))
sketch2.addConstraint(Sketcher.Constraint("DistanceY", 21, 2, 27, 2, 3.690598))
sketch2.addConstraint(Sketcher.Constraint("DistanceX", 28, 2, 22, 2, 13.097299))
sketch2.addConstraint(Sketcher.Constraint("DistanceX", 24, 2, 36, 2, 19.883098))
sketch2.addConstraint(Sketcher.Constraint("DistanceX", 23, 2, 36, 2, 22.171702))
sketch2.addConstraint(Sketcher.Constraint("Distance", 20, 13.957979))
sketch2.addConstraint(Sketcher.Constraint("DistanceX", 1, 1, 1, 2, 5.719707))
sketch2.addConstraint(Sketcher.Constraint("DistanceX", 21, 1, 21, 2, 0.872192))
sketch2.addConstraint(Sketcher.Constraint("DistanceX", 29, 2, 29, 1, 0.908233))
sketch2.addConstraint(Sketcher.Constraint("DistanceX", 34, 2, 34, 1, 0.911837))
sketch2.addConstraint(Sketcher.Constraint("DistanceX", 36, 1, 36, 2, 8.303846))
sketch2.addConstraint(Sketcher.Constraint("DistanceX", 38, 1, 38, 2, 2.306624))
sketch2.addConstraint(Sketcher.Constraint("DistanceY", 37, 2, 37, 1, 4.151923))
sketch2.addConstraint(Sketcher.Constraint("DistanceY", 43, 1, 43, 2, 12.225107))
sketch2.addConstraint(Sketcher.Constraint("DistanceX", 19, 2, -1, 1, 17.048422))
sketch2.addConstraint(Sketcher.Constraint("DistanceX", -1, 1, 35, 2, 10.951109))
sketch2.addConstraint(Sketcher.Constraint("DistanceX", 0, 2, 17, 2, 27.72562))
pocket1 = doc.addObject("PartDesign::Pocket", "Pocket")
body.addObject(pocket1)
pocket1.Profile = sketch2
pocket1.Length = 1.2

sketch3 = doc.addObject("Sketcher::SketchObject", "Sketch002")
body.addObject(sketch3)
sketch3.AttachmentSupport = (doc.XY_Plane, [""])
sketch3.MapMode = "FlatFace"
sketch3.AttachmentOffset = App.Placement(App.Vector(0, 0, 2), App.Rotation())
sketch3.addGeometry(Part.LineSegment(App.Vector(-77, 5, 0), App.Vector(-77, -84, 0)), False)
sketch3.addGeometry(Part.LineSegment(App.Vector(-77, -84, 0), App.Vector(51, -84, 0)), False)
sketch3.addGeometry(Part.LineSegment(App.Vector(51, -84, 0), App.Vector(51, 5, 0)), False)
sketch3.addGeometry(Part.LineSegment(App.Vector(51, 5, 0), App.Vector(-77, 5, 0)), False)
sketch3.addConstraint(Sketcher.Constraint("Coincident", 0, 2, 1, 1))
sketch3.addConstraint(Sketcher.Constraint("Coincident", 1, 2, 2, 1))
sketch3.addConstraint(Sketcher.Constraint("Coincident", 2, 2, 3, 1))
sketch3.addConstraint(Sketcher.Constraint("Coincident", 3, 2, 0, 1))
sketch3.addConstraint(Sketcher.Constraint("Vertical", 0))
sketch3.addConstraint(Sketcher.Constraint("Horizontal", 1))
sketch3.addConstraint(Sketcher.Constraint("Vertical", 2))
sketch3.addConstraint(Sketcher.Constraint("Horizontal", 3))
sketch3.addConstraint(Sketcher.Constraint("DistanceY", 0, 2, 0, 1, 88.5678))
sketch3.addConstraint(Sketcher.Constraint("DistanceX", 1, 1, 1, 2, 128.449988))
sketch3.addConstraint(Sketcher.Constraint("DistanceX", 0, 2, -1, 1, 77.120073))
sketch3.addConstraint(Sketcher.Constraint("DistanceY", 0, 2, -1, 1, 83.950437))
pocket2 = doc.addObject("PartDesign::Pocket", "Pocket001")
body.addObject(pocket2)
pocket2.Profile = sketch3
pocket2.Length = 1

doc.recompute()
